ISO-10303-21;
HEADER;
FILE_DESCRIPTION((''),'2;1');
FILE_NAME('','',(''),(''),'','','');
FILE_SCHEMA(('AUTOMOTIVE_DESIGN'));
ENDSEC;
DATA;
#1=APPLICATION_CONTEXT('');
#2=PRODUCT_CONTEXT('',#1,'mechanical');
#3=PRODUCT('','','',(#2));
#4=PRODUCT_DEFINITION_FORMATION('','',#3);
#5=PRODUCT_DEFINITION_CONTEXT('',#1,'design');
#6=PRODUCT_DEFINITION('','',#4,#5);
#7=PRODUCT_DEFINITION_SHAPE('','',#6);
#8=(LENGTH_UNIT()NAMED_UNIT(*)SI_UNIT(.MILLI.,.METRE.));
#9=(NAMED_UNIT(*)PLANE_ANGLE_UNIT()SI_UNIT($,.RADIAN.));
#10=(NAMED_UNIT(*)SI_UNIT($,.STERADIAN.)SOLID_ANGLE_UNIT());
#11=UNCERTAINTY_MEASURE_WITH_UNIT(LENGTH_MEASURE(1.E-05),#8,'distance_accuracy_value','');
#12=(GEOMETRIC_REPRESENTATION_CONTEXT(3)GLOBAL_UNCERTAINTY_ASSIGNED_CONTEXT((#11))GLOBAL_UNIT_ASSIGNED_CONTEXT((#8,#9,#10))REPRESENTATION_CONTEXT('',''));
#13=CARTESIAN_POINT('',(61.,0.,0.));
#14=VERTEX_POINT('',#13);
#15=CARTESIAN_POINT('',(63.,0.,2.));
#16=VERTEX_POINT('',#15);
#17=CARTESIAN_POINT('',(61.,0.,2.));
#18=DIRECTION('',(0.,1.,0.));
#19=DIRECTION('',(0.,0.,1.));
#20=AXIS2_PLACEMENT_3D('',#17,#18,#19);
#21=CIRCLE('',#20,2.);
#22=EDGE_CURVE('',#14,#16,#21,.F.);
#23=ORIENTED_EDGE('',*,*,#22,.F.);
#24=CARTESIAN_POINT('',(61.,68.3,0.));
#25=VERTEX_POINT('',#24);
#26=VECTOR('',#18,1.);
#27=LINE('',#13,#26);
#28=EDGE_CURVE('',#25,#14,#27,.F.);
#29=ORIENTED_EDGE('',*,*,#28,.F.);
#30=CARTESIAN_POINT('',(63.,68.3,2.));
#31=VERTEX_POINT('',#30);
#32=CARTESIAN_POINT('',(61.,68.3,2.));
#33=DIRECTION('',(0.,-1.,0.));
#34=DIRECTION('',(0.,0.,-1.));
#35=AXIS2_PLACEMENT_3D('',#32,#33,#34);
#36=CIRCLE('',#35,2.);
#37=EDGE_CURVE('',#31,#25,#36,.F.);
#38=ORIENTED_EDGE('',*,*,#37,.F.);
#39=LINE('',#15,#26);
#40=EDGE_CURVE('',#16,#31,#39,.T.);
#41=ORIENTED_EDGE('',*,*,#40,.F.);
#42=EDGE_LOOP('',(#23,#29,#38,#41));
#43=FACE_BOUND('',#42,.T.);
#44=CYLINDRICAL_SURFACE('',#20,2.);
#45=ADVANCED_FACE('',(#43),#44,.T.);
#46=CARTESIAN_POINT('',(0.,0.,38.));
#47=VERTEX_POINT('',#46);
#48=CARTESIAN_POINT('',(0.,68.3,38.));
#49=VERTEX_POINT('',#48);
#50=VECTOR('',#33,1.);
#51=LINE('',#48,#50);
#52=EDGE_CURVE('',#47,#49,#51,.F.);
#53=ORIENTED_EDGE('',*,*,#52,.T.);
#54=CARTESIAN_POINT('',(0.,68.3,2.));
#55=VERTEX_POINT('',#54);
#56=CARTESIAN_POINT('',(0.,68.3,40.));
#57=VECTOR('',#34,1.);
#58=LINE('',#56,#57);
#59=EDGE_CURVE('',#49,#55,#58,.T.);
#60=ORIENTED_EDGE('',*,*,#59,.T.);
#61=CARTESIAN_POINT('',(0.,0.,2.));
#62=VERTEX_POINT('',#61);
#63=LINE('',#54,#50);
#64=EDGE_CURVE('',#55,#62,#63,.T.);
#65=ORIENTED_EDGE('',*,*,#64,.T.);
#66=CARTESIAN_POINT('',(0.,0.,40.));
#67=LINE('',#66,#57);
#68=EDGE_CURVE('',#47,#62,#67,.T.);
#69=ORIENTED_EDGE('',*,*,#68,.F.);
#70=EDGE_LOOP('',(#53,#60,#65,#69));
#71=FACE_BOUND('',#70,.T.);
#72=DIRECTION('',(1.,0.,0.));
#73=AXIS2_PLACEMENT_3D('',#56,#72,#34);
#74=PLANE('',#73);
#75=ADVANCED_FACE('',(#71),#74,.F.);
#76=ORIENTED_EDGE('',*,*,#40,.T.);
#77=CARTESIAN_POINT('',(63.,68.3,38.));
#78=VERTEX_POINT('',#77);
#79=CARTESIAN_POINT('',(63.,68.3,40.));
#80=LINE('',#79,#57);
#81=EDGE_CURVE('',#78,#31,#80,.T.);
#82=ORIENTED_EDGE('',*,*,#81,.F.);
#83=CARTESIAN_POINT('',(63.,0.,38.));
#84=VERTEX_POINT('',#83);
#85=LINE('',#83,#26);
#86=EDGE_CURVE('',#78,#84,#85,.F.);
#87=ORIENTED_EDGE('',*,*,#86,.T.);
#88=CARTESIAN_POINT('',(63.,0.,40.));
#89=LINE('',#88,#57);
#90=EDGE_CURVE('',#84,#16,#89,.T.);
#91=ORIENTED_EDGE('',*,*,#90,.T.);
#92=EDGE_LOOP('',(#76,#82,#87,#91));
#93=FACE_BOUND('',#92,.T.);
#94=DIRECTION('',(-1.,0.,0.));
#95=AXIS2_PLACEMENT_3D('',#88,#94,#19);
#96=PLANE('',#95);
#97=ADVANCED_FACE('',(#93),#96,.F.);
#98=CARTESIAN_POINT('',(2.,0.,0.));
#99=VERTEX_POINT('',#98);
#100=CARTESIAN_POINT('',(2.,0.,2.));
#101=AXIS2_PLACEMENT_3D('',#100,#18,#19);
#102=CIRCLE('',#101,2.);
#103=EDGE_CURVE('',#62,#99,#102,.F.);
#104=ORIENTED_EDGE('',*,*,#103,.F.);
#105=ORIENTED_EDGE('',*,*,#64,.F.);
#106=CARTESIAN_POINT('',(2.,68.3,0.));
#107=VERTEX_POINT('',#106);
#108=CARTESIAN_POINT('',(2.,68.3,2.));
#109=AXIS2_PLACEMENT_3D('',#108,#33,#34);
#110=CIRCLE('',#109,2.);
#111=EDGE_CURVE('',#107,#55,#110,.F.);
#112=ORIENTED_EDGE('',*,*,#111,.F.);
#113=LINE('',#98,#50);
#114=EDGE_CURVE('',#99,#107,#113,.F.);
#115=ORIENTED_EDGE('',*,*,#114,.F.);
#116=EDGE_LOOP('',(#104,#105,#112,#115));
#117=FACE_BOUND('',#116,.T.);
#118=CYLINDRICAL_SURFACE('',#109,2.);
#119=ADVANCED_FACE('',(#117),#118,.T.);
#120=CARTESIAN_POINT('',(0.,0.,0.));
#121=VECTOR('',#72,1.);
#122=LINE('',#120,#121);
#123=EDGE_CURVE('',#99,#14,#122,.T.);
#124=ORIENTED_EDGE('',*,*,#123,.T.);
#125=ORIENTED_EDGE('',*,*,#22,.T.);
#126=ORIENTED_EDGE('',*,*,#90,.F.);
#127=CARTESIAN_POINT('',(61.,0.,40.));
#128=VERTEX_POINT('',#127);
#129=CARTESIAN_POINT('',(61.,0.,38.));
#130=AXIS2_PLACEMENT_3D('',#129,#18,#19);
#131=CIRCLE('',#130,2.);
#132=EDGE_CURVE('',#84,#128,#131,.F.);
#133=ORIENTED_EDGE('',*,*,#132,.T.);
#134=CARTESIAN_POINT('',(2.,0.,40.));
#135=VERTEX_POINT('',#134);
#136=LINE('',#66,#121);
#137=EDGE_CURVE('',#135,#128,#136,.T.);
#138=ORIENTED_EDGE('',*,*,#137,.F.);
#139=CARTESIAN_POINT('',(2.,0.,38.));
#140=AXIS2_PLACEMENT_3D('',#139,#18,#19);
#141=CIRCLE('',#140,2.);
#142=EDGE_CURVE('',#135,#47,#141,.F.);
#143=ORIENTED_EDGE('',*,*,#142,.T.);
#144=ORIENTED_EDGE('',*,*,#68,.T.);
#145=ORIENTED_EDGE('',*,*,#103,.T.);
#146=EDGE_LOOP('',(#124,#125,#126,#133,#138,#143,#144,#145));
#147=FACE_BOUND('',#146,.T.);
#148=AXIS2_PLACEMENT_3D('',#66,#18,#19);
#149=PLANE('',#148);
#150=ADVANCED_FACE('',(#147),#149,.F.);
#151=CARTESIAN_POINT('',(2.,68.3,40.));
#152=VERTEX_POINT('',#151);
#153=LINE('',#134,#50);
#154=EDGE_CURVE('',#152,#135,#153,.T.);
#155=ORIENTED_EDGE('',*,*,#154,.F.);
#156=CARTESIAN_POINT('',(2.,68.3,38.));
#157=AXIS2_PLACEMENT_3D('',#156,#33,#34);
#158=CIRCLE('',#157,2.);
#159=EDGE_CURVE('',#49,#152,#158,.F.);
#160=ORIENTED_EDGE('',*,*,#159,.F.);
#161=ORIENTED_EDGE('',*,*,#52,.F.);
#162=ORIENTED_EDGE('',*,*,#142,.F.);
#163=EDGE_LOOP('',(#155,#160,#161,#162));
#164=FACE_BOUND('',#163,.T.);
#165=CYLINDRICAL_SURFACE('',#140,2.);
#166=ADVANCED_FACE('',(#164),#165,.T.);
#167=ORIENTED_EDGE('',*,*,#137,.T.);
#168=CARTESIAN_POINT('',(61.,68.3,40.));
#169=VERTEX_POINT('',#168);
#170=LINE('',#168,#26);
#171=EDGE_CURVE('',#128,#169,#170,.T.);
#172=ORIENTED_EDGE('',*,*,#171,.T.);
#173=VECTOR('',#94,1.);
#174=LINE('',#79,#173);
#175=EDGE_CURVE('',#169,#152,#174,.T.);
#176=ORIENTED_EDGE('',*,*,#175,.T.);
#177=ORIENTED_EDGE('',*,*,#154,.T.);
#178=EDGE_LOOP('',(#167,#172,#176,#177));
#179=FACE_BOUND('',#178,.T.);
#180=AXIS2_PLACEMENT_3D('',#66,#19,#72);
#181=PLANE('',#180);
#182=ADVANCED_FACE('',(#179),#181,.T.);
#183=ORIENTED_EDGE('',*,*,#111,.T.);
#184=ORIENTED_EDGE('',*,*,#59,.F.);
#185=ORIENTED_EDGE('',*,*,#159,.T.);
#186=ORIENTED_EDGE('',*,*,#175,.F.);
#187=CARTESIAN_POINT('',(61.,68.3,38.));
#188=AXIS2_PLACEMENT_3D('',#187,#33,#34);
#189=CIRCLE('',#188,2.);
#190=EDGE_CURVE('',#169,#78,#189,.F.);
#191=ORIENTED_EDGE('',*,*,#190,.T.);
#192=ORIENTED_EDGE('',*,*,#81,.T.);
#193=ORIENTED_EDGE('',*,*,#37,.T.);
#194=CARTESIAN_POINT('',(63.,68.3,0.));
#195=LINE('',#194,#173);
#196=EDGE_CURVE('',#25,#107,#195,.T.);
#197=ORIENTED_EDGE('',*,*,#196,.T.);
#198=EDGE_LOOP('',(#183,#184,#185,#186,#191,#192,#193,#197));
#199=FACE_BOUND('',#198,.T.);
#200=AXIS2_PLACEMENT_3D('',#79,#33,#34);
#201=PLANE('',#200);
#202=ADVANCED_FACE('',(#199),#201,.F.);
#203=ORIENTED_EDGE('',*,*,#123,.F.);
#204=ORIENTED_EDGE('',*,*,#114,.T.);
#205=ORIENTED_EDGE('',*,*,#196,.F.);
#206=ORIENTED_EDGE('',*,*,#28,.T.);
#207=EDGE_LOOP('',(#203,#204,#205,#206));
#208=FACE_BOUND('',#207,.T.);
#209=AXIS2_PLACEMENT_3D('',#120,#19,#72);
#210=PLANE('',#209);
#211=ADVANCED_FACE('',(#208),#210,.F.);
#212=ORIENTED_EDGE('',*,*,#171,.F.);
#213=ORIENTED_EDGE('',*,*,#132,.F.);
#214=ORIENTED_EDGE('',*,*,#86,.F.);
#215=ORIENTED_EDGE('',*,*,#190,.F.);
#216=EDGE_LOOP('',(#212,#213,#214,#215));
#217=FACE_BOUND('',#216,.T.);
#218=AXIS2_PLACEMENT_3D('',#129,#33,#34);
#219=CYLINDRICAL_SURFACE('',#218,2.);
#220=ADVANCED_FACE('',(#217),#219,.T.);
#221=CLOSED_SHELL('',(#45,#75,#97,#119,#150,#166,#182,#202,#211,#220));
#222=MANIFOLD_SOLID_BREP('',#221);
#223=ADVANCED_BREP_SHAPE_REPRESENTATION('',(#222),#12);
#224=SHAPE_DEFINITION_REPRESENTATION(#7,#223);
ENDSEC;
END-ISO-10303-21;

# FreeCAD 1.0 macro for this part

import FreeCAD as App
import Part
import Sketcher
from FreeCAD import Vector


def edges_at(feature, points):
    """Names of the edges that pass closest to the given points."""
    edges = feature.Shape.Edges
    near = lambda p: min(range(len(edges)), key=lambda i: edges[i].distToShape(Part.Vertex(*p))[0])
    return sorted({f"Edge{near(p) + 1}" for p in points})


def add_polygon(sketch, points):
    """Adds a closed chain of lines whose ends are joined by coincident constraints."""
    first, n = sketch.GeometryCount, len(points)
    for a, b in zip(points, points[1:] + points[:1]):
        sketch.addGeometry(Part.LineSegment(App.Vector(*a, 0), App.Vector(*b, 0)), False)
    for i in range(n):
        sketch.addConstraint(Sketcher.Constraint("Coincident", first + i, 2, first + (i + 1) % n, 1))

doc = App.newDocument("Part")
body = doc.addObject("PartDesign::Body", "Body")

# Sketch on XY plane
sketch1 = body.newObject("Sketcher::SketchObject", "Sketch")
sketch1.AttachmentSupport = (doc.getObject("XY_Plane"), [""])
sketch1.MapMode = "FlatFace"
add_polygon(sketch1, [(0, 68), (0, 0), (63, 0), (63, 68)])  # lines 0-3
sketch1.addConstraint(Sketcher.Constraint("Vertical", 0))
sketch1.addConstraint(Sketcher.Constraint("Horizontal", 1))
sketch1.addConstraint(Sketcher.Constraint("Vertical", 2))
sketch1.addConstraint(Sketcher.Constraint("Horizontal", 3))
sketch1.addConstraint(Sketcher.Constraint("Coincident", 0, 2, -1, 1))
sketch1.addConstraint(Sketcher.Constraint("DistanceX", 1, 1, 1, 2, 63.0))
sketch1.addConstraint(Sketcher.Constraint("DistanceY", 0, 2, 0, 1, 68.3))
pad1 = body.newObject("PartDesign::Pad", "Pad")
pad1.Profile = sketch1
pad1.Length = 40
doc.recompute()

fillet = body.newObject("PartDesign::Fillet", "Fillet")
fillet.Base = (pad1, edges_at(pad1, [
    (63, 34.15, 40),
    (0, 34.15, 40),
    (63, 34.15, 0),
    (0, 34.15, 0),
]))
fillet.Radius = 2

doc.recompute()
